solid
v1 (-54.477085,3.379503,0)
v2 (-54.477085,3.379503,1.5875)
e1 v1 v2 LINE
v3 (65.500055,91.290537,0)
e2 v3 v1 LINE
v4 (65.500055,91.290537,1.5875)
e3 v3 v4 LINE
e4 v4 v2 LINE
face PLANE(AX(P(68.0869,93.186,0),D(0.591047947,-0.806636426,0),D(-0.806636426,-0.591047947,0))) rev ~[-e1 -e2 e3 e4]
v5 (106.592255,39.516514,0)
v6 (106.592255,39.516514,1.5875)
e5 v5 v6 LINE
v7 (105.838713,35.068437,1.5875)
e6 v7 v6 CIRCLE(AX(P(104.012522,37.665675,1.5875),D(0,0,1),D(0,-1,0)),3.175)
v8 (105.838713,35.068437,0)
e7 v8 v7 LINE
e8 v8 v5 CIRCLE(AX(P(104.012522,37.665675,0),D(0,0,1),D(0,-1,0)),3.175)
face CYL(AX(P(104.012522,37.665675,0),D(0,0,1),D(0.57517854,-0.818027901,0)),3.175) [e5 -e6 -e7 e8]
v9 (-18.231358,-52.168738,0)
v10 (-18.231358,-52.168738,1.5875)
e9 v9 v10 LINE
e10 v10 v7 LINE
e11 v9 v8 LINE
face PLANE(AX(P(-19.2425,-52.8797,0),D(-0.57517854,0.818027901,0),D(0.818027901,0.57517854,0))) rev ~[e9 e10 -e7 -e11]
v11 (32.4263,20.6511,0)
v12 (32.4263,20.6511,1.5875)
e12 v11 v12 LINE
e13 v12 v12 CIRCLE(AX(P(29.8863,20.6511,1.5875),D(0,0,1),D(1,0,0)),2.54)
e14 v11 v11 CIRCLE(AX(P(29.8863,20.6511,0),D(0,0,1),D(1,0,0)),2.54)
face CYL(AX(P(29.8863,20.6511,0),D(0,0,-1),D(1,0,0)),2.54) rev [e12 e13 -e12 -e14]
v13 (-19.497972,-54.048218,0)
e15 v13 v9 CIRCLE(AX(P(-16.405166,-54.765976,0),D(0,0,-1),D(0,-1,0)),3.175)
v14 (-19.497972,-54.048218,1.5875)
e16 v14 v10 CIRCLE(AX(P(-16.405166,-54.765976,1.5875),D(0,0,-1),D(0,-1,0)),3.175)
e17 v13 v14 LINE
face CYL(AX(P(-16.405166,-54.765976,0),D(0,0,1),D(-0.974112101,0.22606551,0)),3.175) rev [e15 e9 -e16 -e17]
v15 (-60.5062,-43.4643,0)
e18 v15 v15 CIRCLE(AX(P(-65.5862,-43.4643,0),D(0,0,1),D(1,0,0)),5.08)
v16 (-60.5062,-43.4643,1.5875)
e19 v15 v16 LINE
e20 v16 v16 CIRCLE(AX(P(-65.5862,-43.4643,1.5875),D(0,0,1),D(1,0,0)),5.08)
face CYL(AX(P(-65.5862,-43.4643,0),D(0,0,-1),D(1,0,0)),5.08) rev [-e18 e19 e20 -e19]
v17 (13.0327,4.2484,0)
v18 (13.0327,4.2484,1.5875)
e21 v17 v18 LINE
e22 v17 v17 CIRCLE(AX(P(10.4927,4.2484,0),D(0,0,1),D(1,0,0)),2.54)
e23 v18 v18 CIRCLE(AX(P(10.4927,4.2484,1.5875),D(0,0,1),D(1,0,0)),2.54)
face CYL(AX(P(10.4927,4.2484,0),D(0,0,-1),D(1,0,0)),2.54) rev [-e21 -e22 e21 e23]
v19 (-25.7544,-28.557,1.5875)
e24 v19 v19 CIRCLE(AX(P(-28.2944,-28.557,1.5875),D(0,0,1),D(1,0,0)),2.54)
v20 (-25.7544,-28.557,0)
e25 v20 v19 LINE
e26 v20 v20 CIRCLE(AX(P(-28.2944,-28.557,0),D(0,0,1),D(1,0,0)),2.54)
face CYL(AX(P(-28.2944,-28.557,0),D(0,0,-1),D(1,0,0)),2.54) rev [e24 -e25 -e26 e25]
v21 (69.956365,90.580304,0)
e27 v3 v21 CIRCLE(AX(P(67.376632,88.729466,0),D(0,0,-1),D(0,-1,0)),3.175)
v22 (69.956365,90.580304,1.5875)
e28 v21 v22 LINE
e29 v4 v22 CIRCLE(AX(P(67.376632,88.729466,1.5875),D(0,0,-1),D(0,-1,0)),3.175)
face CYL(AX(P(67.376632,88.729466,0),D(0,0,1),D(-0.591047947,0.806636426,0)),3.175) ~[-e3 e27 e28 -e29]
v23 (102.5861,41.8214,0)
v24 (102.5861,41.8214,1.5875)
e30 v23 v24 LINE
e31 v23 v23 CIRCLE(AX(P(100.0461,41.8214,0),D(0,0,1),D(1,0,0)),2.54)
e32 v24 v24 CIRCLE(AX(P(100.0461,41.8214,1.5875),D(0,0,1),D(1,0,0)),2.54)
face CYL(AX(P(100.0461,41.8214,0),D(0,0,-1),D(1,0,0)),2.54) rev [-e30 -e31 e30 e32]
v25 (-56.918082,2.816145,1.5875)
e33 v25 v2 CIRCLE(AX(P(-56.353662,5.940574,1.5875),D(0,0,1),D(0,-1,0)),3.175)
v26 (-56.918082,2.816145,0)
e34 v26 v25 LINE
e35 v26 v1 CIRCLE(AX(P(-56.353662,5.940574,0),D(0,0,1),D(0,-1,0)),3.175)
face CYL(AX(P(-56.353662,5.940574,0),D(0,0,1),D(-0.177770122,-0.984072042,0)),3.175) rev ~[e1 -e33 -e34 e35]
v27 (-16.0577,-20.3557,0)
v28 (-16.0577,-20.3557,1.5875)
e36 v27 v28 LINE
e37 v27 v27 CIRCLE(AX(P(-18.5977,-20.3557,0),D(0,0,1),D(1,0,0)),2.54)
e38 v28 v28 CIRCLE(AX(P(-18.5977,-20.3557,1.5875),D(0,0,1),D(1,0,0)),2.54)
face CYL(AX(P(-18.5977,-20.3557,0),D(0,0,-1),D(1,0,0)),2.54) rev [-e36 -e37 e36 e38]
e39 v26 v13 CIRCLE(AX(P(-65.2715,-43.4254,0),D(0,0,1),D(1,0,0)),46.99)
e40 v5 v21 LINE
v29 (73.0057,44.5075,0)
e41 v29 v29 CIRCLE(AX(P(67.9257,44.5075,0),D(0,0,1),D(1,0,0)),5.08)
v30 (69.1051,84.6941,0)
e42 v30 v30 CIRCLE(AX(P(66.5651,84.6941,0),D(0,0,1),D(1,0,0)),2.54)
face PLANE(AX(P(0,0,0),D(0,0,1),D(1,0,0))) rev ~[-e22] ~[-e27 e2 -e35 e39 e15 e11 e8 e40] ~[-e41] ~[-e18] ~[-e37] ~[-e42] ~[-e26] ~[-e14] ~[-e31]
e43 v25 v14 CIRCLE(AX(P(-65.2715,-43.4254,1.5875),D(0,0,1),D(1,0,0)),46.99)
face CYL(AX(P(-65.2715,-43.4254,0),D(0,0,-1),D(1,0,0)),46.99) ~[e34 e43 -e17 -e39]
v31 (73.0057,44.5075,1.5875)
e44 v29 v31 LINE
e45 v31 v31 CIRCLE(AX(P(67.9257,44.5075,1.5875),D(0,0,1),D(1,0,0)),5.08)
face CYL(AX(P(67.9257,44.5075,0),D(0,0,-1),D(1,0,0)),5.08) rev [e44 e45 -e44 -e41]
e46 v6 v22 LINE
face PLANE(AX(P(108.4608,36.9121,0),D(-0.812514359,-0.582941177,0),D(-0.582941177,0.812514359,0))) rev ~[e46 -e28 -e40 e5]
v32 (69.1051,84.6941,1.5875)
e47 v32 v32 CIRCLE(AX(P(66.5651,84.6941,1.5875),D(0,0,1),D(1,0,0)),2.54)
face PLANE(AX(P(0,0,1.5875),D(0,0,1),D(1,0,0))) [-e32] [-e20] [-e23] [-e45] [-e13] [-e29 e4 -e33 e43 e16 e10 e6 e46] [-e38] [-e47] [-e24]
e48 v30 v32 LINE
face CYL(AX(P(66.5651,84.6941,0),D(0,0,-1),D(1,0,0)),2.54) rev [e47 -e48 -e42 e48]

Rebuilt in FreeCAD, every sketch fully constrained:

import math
import FreeCAD as App
import Part
import Sketcher
from FreeCAD import Vector
Q = App.Units.Quantity


def edges_at(feature, points):
    """Names of the edges that pass closest to the given points."""
    edges = feature.Shape.Edges
    near = lambda p: min(range(len(edges)), key=lambda i: edges[i].distToShape(Part.Vertex(*p))[0])
    return sorted({f"Edge{near(p) + 1}" for p in points})

doc = App.newDocument("Part")
body = doc.addObject("PartDesign::Body", "Body")

# Sketch on XY plane
sketch1 = doc.addObject("Sketcher::SketchObject", "Sketch")
body.addObject(sketch1)
sketch1.AttachmentSupport = (doc.XY_Plane, [""])
sketch1.MapMode = "FlatFace"
sketch1.addGeometry(Part.ArcOfCircle(Part.Circle(Vector(-65.3, -43.4, 0), Vector(0, 0, 1), 47), math.radians(78), math.radians(348)), False)
sketch1.addGeometry(Part.LineSegment(Vector(-19.2, -52.9, 0), Vector(108.5, 36.9, 0)), False)
sketch1.addGeometry(Part.LineSegment(Vector(108.5, 36.9, 0), Vector(68.1, 93.2, 0)), False)
sketch1.addGeometry(Part.LineSegment(Vector(68.1, 93.2, 0), Vector(-55.6, 2.6, 0)), False)
sketch1.addGeometry(Part.Circle(Vector(-65.6, -43.5, 0), Vector(0, 0, 1), 5.1), False)
sketch1.addGeometry(Part.Circle(Vector(-28.3, -28.6, 0), Vector(0, 0, 1), 2.5), False)
sketch1.addGeometry(Part.Circle(Vector(100, 41.8, 0), Vector(0, 0, 1), 2.5), False)
sketch1.addGeometry(Part.Circle(Vector(66.6, 84.7, 0), Vector(0, 0, 1), 2.5), False)
sketch1.addGeometry(Part.Circle(Vector(-18.6, -20.4, 0), Vector(0, 0, 1), 2.5), False)
sketch1.addGeometry(Part.Circle(Vector(10.5, 4.2, 0), Vector(0, 0, 1), 2.5), False)
sketch1.addGeometry(Part.Circle(Vector(29.9, 20.7, 0), Vector(0, 0, 1), 2.5), False)
sketch1.addGeometry(Part.Circle(Vector(67.9, 44.5, 0), Vector(0, 0, 1), 5.1), False)
sketch1.addConstraint(Sketcher.Constraint("Coincident", 0, 2, 1, 1))
sketch1.addConstraint(Sketcher.Constraint("Coincident", 1, 2, 2, 1))
sketch1.addConstraint(Sketcher.Constraint("Coincident", 2, 2, 3, 1))
sketch1.addConstraint(Sketcher.Constraint("Coincident", 3, 2, 0, 1))
sketch1.addConstraint(Sketcher.Constraint("Equal", 5, 6))
sketch1.addConstraint(Sketcher.Constraint("Equal", 6, 7))
sketch1.addConstraint(Sketcher.Constraint("Equal", 7, 8))
sketch1.addConstraint(Sketcher.Constraint("Equal", 8, 9))
sketch1.addConstraint(Sketcher.Constraint("Equal", 9, 10))
sketch1.addConstraint(Sketcher.Constraint("Equal", 4, 11))
sketch1.addConstraint(Sketcher.Constraint("Diameter", 4, Q("0.4 in")))
sketch1.addConstraint(Sketcher.Constraint("Diameter", 5, Q("0.2 in")))
sketch1.addConstraint(Sketcher.Constraint("Radius", 0, Q("1.85 in")))
sketch1.addConstraint(Sketcher.Constraint("Distance", 3, 153.3343))
sketch1.addConstraint(Sketcher.Constraint("DistanceY", 9, 3, 11, 3, Q("1.585 in")))
sketch1.addConstraint(Sketcher.Constraint("DistanceX", 9, 3, 1, 2, Q("3.857 in")))
sketch1.addConstraint(Sketcher.Constraint("DistanceY", 5, 3, 3, 2, Q("1.225 in")))
sketch1.addConstraint(Sketcher.Constraint("DistanceX", 3, 2, 9, 3, Q("2.602 in")))
sketch1.addConstraint(Sketcher.Constraint("Distance", 1, Q("6.1461 in")))
sketch1.addConstraint(Sketcher.Constraint("DistanceY", 4, 3, -1, 1, Q("1.7112 in")))
sketch1.addConstraint(Sketcher.Constraint("DistanceY", 5, 3, -1, 1, Q("1.1243 in")))
sketch1.addConstraint(Sketcher.Constraint("DistanceY", -1, 1, 6, 3, Q("1.6465 in")))
sketch1.addConstraint(Sketcher.Constraint("DistanceX", 8, 3, -1, 1, Q("0.7322 in")))
sketch1.addConstraint(Sketcher.Constraint("DistanceY", 8, 3, -1, 1, Q("0.8014 in")))
sketch1.addConstraint(Sketcher.Constraint("DistanceX", -1, 1, 9, 3, Q("0.4131 in")))
sketch1.addConstraint(Sketcher.Constraint("DistanceX", 4, 3, 0, 3, Q("0.0124 in")))
sketch1.addConstraint(Sketcher.Constraint("DistanceX", 0, 3, 5, 3, Q("1.4558 in")))
sketch1.addConstraint(Sketcher.Constraint("DistanceY", 6, 3, 7, 3, Q("1.6879 in")))
sketch1.addConstraint(Sketcher.Constraint("DistanceX", 4, 3, 7, 3, Q("5.2028 in")))
sketch1.addConstraint(Sketcher.Constraint("DistanceX", 10, 3, 6, 3, Q("2.7622 in")))
sketch1.addConstraint(Sketcher.Constraint("DistanceY", 10, 3, 1, 2, Q("0.6402 in")))
sketch1.addConstraint(Sketcher.Constraint("DistanceY", 1, 2, 2, 2, Q("2.2155 in")))
sketch1.addConstraint(Sketcher.Constraint("Distance", 2, 69.259))
sketch1.addConstraint(Sketcher.Constraint("DistanceX", 0, 3, -1, 1, 65.2715))
sketch1.addConstraint(Sketcher.Constraint("DistanceX", -1, 1, 6, 3, 100.046))
sketch1.addConstraint(Sketcher.Constraint("DistanceY", -1, 1, 9, 3, 4.2484))
sketch1.addConstraint(Sketcher.Constraint("DistanceX", -1, 1, 11, 3, 67.9257))
pad1 = doc.addObject("PartDesign::Pad", "Pad")
body.addObject(pad1)
pad1.Profile = sketch1
pad1.Length = Q("0.0625 in")
doc.recompute()

fillet = doc.addObject("PartDesign::Fillet", "Fillet")
body.addObject(fillet)
fillet.Base = (pad1, edges_at(pad1, [
    (-55.598, 2.558, 0.794),
    (68.087, 93.186, 0.794),
    (108.461, 36.912, 0.794),
    (-19.242, -52.88, 0.794),
]))
fillet.Radius = Q("0.125 in")

doc.recompute()
